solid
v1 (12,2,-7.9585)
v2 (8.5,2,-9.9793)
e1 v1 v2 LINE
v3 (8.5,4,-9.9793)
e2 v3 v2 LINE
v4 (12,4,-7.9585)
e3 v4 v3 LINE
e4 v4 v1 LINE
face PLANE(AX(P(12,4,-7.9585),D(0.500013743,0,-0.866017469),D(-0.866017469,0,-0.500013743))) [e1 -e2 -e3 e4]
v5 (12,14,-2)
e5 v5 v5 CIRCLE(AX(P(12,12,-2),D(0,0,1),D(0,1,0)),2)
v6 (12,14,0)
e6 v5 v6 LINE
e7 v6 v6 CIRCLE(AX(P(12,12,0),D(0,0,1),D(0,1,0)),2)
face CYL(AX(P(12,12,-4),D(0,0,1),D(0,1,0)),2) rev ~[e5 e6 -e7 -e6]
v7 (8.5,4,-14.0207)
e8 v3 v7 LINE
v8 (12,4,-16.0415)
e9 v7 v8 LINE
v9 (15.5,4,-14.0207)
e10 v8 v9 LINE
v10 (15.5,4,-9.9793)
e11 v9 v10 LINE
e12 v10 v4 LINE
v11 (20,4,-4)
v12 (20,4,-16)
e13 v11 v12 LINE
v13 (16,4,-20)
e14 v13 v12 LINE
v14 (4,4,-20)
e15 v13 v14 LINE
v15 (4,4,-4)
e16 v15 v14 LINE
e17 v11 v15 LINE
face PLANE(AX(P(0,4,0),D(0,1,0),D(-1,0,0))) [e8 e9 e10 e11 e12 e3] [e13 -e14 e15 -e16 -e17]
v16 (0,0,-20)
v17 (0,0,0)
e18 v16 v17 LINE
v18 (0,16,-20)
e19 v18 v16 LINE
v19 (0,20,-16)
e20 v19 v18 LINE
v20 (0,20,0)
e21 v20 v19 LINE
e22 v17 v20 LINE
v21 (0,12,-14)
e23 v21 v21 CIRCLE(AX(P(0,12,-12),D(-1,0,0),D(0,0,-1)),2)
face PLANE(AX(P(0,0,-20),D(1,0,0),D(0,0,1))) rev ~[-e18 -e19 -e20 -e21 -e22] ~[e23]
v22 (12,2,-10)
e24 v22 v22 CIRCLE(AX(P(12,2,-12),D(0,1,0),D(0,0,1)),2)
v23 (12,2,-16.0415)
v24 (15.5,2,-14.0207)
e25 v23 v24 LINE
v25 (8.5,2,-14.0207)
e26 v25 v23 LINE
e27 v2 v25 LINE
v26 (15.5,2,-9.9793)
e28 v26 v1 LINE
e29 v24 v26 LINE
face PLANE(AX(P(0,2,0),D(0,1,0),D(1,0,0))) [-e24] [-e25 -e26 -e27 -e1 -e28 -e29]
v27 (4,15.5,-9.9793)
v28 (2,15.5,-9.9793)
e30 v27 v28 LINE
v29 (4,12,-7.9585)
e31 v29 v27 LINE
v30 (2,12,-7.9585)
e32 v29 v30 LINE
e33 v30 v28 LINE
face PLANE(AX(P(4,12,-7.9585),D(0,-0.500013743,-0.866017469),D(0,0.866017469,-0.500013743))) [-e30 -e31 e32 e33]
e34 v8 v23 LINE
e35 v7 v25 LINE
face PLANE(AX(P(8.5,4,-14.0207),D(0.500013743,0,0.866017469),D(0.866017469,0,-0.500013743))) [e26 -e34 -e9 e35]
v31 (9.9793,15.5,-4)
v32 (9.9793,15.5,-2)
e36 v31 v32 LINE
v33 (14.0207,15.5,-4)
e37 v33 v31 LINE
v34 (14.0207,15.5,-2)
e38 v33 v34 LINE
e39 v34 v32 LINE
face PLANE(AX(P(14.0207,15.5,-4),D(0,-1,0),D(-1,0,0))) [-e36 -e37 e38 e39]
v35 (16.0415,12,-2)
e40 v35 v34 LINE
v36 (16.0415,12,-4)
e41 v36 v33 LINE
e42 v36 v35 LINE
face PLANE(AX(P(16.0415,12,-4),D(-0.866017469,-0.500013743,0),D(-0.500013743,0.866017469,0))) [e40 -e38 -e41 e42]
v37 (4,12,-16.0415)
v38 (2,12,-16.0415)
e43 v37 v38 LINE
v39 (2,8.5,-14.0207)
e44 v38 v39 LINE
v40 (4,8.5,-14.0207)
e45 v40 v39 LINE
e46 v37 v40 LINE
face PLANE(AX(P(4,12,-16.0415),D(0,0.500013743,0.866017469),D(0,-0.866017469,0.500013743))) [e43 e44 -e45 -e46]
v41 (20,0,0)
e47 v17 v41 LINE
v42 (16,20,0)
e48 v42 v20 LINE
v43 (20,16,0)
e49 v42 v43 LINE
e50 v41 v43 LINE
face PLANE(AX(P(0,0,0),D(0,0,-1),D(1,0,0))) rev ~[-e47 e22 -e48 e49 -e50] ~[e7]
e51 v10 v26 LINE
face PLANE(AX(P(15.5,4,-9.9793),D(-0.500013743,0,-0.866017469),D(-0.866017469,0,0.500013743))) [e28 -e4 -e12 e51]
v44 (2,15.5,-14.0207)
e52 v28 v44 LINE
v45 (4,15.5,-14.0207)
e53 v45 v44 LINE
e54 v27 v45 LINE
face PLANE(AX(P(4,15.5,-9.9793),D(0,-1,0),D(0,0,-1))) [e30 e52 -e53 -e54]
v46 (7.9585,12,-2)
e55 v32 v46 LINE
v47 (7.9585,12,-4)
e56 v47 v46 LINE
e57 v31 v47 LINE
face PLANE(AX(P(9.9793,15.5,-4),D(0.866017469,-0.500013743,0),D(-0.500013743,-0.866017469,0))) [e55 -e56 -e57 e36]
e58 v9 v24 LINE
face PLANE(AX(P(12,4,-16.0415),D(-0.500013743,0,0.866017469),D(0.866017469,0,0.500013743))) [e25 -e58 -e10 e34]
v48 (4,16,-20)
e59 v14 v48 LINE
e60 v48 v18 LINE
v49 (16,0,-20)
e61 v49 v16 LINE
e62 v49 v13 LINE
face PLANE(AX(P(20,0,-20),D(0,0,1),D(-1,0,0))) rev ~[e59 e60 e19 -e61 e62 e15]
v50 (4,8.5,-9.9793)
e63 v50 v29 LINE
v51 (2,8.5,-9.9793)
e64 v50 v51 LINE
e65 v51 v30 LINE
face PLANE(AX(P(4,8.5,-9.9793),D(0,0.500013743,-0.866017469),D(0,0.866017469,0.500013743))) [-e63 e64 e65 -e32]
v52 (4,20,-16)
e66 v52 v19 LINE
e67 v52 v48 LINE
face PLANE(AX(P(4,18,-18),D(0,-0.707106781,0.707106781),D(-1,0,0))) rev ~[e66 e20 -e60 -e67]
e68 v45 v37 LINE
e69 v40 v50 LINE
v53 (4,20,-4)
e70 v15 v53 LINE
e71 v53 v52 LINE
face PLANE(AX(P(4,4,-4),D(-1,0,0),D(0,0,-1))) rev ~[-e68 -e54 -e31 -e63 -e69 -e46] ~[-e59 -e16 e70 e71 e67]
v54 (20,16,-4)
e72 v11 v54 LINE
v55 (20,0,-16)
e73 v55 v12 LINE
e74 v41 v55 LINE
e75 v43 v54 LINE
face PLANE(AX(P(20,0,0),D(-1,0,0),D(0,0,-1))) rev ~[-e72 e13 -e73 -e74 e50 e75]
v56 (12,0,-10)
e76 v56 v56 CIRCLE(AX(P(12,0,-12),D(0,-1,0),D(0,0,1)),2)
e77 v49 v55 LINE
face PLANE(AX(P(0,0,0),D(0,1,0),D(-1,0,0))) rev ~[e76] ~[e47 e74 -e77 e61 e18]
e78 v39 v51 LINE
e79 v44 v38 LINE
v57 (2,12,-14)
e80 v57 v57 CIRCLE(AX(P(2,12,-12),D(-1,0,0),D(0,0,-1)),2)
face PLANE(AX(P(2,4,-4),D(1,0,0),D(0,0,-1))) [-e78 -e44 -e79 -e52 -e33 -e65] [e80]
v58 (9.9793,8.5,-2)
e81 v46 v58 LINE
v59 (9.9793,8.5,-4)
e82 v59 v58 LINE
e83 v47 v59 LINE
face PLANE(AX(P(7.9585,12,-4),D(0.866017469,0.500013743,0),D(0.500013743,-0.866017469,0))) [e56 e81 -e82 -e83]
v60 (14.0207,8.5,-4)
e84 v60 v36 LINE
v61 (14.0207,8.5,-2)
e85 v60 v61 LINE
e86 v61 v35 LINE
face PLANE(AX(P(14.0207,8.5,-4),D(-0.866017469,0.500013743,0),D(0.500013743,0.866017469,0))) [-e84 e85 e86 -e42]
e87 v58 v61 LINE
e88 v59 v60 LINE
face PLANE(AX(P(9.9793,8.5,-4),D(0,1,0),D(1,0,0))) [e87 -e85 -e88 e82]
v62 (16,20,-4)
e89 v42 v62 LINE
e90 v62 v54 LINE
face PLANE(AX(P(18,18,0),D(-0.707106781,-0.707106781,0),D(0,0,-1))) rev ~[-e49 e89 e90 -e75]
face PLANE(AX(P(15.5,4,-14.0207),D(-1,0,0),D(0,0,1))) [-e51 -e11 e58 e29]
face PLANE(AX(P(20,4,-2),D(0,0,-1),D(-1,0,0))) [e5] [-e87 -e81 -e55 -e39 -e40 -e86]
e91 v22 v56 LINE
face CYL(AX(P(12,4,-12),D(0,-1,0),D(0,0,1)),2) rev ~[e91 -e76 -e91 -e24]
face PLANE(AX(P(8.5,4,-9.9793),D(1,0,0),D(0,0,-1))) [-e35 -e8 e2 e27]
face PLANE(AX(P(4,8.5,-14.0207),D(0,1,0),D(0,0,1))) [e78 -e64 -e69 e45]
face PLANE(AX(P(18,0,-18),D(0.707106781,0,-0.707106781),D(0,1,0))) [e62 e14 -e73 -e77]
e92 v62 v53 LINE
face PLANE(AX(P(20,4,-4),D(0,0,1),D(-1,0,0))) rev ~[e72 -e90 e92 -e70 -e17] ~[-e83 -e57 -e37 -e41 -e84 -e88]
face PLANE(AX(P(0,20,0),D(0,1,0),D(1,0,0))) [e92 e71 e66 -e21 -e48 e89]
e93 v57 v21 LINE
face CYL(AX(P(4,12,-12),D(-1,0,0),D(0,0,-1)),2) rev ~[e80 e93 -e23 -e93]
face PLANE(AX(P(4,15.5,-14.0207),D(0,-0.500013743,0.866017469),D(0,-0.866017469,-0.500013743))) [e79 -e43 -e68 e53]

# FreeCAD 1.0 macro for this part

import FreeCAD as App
import Part
import Sketcher
from FreeCAD import Vector
Q = App.Units.Quantity


def edges_at(feature, points):
    """Names of the edges that pass closest to the given points."""
    edges = feature.Shape.Edges
    near = lambda p: min(range(len(edges)), key=lambda i: edges[i].distToShape(Part.Vertex(*p))[0])
    return sorted({f"Edge{near(p) + 1}" for p in points})

doc = App.newDocument("Part")
body = doc.addObject("PartDesign::Body", "Body")

# Sketch on XZ plane
sketch1 = doc.addObject("Sketcher::SketchObject", "Sketch")
body.addObject(sketch1)
sketch1.AttachmentSupport = (doc.XZ_Plane, [""])
sketch1.MapMode = "FlatFace"
sketch1.addGeometry(Part.LineSegment(Vector(0, -20, 0), Vector(0, 0, 0)), False)
sketch1.addGeometry(Part.LineSegment(Vector(0, 0, 0), Vector(20, 0, 0)), False)
sketch1.addGeometry(Part.LineSegment(Vector(20, 0, 0), Vector(20, -20, 0)), False)
sketch1.addGeometry(Part.LineSegment(Vector(20, -20, 0), Vector(0, -20, 0)), False)
sketch1.addConstraint(Sketcher.Constraint("Coincident", 0, 2, 1, 1))
sketch1.addConstraint(Sketcher.Constraint("Coincident", 1, 2, 2, 1))
sketch1.addConstraint(Sketcher.Constraint("Coincident", 2, 2, 3, 1))
sketch1.addConstraint(Sketcher.Constraint("Coincident", 3, 2, 0, 1))
sketch1.addConstraint(Sketcher.Constraint("Vertical", 0))
sketch1.addConstraint(Sketcher.Constraint("Horizontal", 1))
sketch1.addConstraint(Sketcher.Constraint("Vertical", 2))
sketch1.addConstraint(Sketcher.Constraint("Horizontal", 3))
sketch1.addConstraint(Sketcher.Constraint("Coincident", 0, 2, -1, 1))
sketch1.addConstraint(Sketcher.Constraint("Equal", 3, 0))
sketch1.addConstraint(Sketcher.Constraint("DistanceX", 1, 1, 1, 2, Q("20 mm")))
pad1 = doc.addObject("PartDesign::Pad", "Pad")
body.addObject(pad1)
pad1.Profile = sketch1
pad1.Length = 4
pad1.Reversed = True

# Sketch on XZ plane
sketch2 = doc.addObject("Sketcher::SketchObject", "Sketch001")
body.addObject(sketch2)
sketch2.AttachmentSupport = (doc.XZ_Plane, [""])
sketch2.MapMode = "FlatFace"
sketch2.AttachmentOffset = App.Placement(Vector(0, 0, -4), App.Rotation())
sketch2.addGeometry(Part.LineSegment(Vector(0, -20, 0), Vector(0, 0, 0)), False)
sketch2.addGeometry(Part.LineSegment(Vector(0, 0, 0), Vector(20, 0, 0)), False)
sketch2.addGeometry(Part.LineSegment(Vector(20, 0, 0), Vector(20, -4, 0)), False)
sketch2.addGeometry(Part.LineSegment(Vector(20, -4, 0), Vector(4, -4, 0)), False)
sketch2.addGeometry(Part.LineSegment(Vector(4, -4, 0), Vector(4, -20, 0)), False)
sketch2.addGeometry(Part.LineSegment(Vector(4, -20, 0), Vector(0, -20, 0)), False)
sketch2.addConstraint(Sketcher.Constraint("Coincident", 0, 2, 1, 1))
sketch2.addConstraint(Sketcher.Constraint("Coincident", 1, 2, 2, 1))
sketch2.addConstraint(Sketcher.Constraint("Coincident", 2, 2, 3, 1))
sketch2.addConstraint(Sketcher.Constraint("Coincident", 3, 2, 4, 1))
sketch2.addConstraint(Sketcher.Constraint("Coincident", 4, 2, 5, 1))
sketch2.addConstraint(Sketcher.Constraint("Coincident", 5, 2, 0, 1))
sketch2.addConstraint(Sketcher.Constraint("Vertical", 0))
sketch2.addConstraint(Sketcher.Constraint("Horizontal", 1))
sketch2.addConstraint(Sketcher.Constraint("Vertical", 2))
sketch2.addConstraint(Sketcher.Constraint("Horizontal", 3))
sketch2.addConstraint(Sketcher.Constraint("Vertical", 4))
sketch2.addConstraint(Sketcher.Constraint("Horizontal", 5))
sketch2.addConstraint(Sketcher.Constraint("Coincident", 0, 2, -1, 1))
sketch2.addConstraint(Sketcher.Constraint("Equal", 1, 0))
sketch2.addConstraint(Sketcher.Constraint("Equal", 5, 2))
sketch2.addConstraint(Sketcher.Constraint("DistanceX", 1, 1, 1, 2, Q("20 mm")))
sketch2.addConstraint(Sketcher.Constraint("DistanceX", 3, 2, 3, 1, Q("16 mm")))
pad2 = doc.addObject("PartDesign::Pad", "Pad001")
body.addObject(pad2)
pad2.Profile = sketch2
pad2.Length = 16
pad2.Reversed = True

# Sketch on XY plane
sketch3 = doc.addObject("Sketcher::SketchObject", "Sketch002")
body.addObject(sketch3)
sketch3.AttachmentSupport = (doc.XY_Plane, [""])
sketch3.MapMode = "FlatFace"
sketch3.AttachmentOffset = App.Placement(Vector(0, 0, -4), App.Rotation())
sketch3.addGeometry(Part.Circle(Vector(12, 12, 0), Vector(0, 0, 1), 2), False)
sketch3.addConstraint(Sketcher.Constraint("Diameter", 0, Q("4 mm")))
sketch3.addConstraint(Sketcher.Constraint("DistanceX", -1, 1, 0, 3, Q("12 mm")))
sketch3.addConstraint(Sketcher.Constraint("DistanceY", -1, 1, 0, 3, Q("12 mm")))
doc.recompute()
hole = doc.addObject("PartDesign::Hole", "Hole")
body.addObject(hole)
hole.Profile = sketch3
hole.ThreadType = "None"
hole.Diameter = 4
hole.DepthType = "ThroughAll"
hole.Reversed = True

# Sketch on YZ plane
sketch4 = doc.addObject("Sketcher::SketchObject", "Sketch003")
body.addObject(sketch4)
sketch4.AttachmentSupport = (doc.YZ_Plane, [""])
sketch4.MapMode = "FlatFace"
sketch4.AttachmentOffset = App.Placement(Vector(0, 0, 4), App.Rotation())
sketch4.addGeometry(Part.Circle(Vector(12, -12, 0), Vector(0, 0, 1), 2), False)
sketch4.addConstraint(Sketcher.Constraint("Diameter", 0, Q("4 mm")))
sketch4.addConstraint(Sketcher.Constraint("DistanceX", -1, 1, 0, 3, Q("12 mm")))
sketch4.addConstraint(Sketcher.Constraint("DistanceY", 0, 3, -1, 1, Q("12 mm")))
doc.recompute()
hole2 = doc.addObject("PartDesign::Hole", "Hole001")
body.addObject(hole2)
hole2.Profile = sketch4
hole2.ThreadType = "None"
hole2.Diameter = 4
hole2.DepthType = "ThroughAll"

# Sketch on XZ plane
sketch5 = doc.addObject("Sketcher::SketchObject", "Sketch004")
body.addObject(sketch5)
sketch5.AttachmentSupport = (doc.XZ_Plane, [""])
sketch5.MapMode = "FlatFace"
sketch5.AttachmentOffset = App.Placement(Vector(0, 0, -4), App.Rotation())
sketch5.addGeometry(Part.Circle(Vector(12, -12, 0), Vector(0, 0, 1), 2), False)
sketch5.addConstraint(Sketcher.Constraint("Diameter", 0, Q("4 mm")))
sketch5.addConstraint(Sketcher.Constraint("DistanceX", -1, 1, 0, 3, Q("12 mm")))
sketch5.addConstraint(Sketcher.Constraint("DistanceY", 0, 3, -1, 1, Q("12 mm")))
doc.recompute()
hole3 = doc.addObject("PartDesign::Hole", "Hole002")
body.addObject(hole3)
hole3.Profile = sketch5
hole3.ThreadType = "None"
hole3.Diameter = 4
hole3.DepthType = "ThroughAll"
hole3.Reversed = True
doc.recompute()

chamfer = doc.addObject("PartDesign::Chamfer", "Chamfer")
body.addObject(chamfer)
chamfer.Base = (hole3, edges_at(hole3, [(20, 2, -20)]))
chamfer.Size = 4
doc.recompute()

chamfer2 = doc.addObject("PartDesign::Chamfer", "Chamfer001")
body.addObject(chamfer2)
chamfer2.Base = (chamfer, edges_at(chamfer, [(20, 20, -2)]))
chamfer2.Size = 4
doc.recompute()

chamfer3 = doc.addObject("PartDesign::Chamfer", "Chamfer002")
body.addObject(chamfer3)
chamfer3.Base = (chamfer2, edges_at(chamfer2, [(2, 20, -20)]))
chamfer3.Size = 4

# Sketch on XY plane
sketch6 = doc.addObject("Sketcher::SketchObject", "Sketch005")
body.addObject(sketch6)
sketch6.AttachmentSupport = (doc.XY_Plane, [""])
sketch6.MapMode = "FlatFace"
sketch6.AttachmentOffset = App.Placement(Vector(0, 0, -4), App.Rotation())
sketch6.addGeometry(Part.LineSegment(Vector(9.9793, 8.5, 0), Vector(7.9585, 12, 0)), False)
sketch6.addGeometry(Part.LineSegment(Vector(7.9585, 12, 0), Vector(9.9793, 15.5, 0)), False)
sketch6.addGeometry(Part.LineSegment(Vector(9.9793, 15.5, 0), Vector(14.0207, 15.5, 0)), False)
sketch6.addGeometry(Part.LineSegment(Vector(14.0207, 15.5, 0), Vector(16.0415, 12, 0)), False)
sketch6.addGeometry(Part.LineSegment(Vector(16.0415, 12, 0), Vector(14.0207, 8.5, 0)), False)
sketch6.addGeometry(Part.LineSegment(Vector(14.0207, 8.5, 0), Vector(9.9793, 8.5, 0)), False)
sketch6.addConstraint(Sketcher.Constraint("Coincident", 0, 2, 1, 1))
sketch6.addConstraint(Sketcher.Constraint("Coincident", 1, 2, 2, 1))
sketch6.addConstraint(Sketcher.Constraint("Coincident", 2, 2, 3, 1))
sketch6.addConstraint(Sketcher.Constraint("Coincident", 3, 2, 4, 1))
sketch6.addConstraint(Sketcher.Constraint("Coincident", 4, 2, 5, 1))
sketch6.addConstraint(Sketcher.Constraint("Coincident", 5, 2, 0, 1))
sketch6.addConstraint(Sketcher.Constraint("Horizontal", 2))
sketch6.addConstraint(Sketcher.Constraint("Horizontal", 5))
sketch6.addConstraint(Sketcher.Constraint("Parallel", 0, 3))
sketch6.addConstraint(Sketcher.Constraint("Parallel", 1, 4))
sketch6.addConstraint(Sketcher.Constraint("Horizontal", 0, 2, 3, 2))
sketch6.addConstraint(Sketcher.Constraint("Vertical", 2, 2, 4, 2))
sketch6.addConstraint(Sketcher.Constraint("Vertical", 1, 2, 5, 2))
sketch6.addConstraint(Sketcher.Constraint("DistanceY", 4, 2, 2, 2, Q("7 mm")))
sketch6.addConstraint(Sketcher.Constraint("Angle", 0, Q("120.001 deg")))
sketch6.addConstraint(Sketcher.Constraint("DistanceY", -1, 1, 0, 2, Q("12 mm")))
sketch6.addConstraint(Sketcher.Constraint("DistanceX", 2, 1, 2, 2, Q("4.0414 mm")))
sketch6.addConstraint(Sketcher.Constraint("DistanceX", -1, 1, 0, 2, Q("7.9585 mm")))
pocket1 = doc.addObject("PartDesign::Pocket", "Pocket")
body.addObject(pocket1)
pocket1.Profile = sketch6
pocket1.Length = 2
pocket1.Reversed = True

# Sketch on YZ plane
sketch7 = doc.addObject("Sketcher::SketchObject", "Sketch006")
body.addObject(sketch7)
sketch7.AttachmentSupport = (doc.YZ_Plane, [""])
sketch7.MapMode = "FlatFace"
sketch7.AttachmentOffset = App.Placement(Vector(0, 0, 4), App.Rotation())
sketch7.addGeometry(Part.LineSegment(Vector(8.5, -14.0207, 0), Vector(12, -16.0415, 0)), False)
sketch7.addGeometry(Part.LineSegment(Vector(12, -16.0415, 0), Vector(15.5, -14.0207, 0)), False)
sketch7.addGeometry(Part.LineSegment(Vector(15.5, -14.0207, 0), Vector(15.5, -9.9793, 0)), False)
sketch7.addGeometry(Part.LineSegment(Vector(15.5, -9.9793, 0), Vector(12, -7.9585, 0)), False)
sketch7.addGeometry(Part.LineSegment(Vector(12, -7.9585, 0), Vector(8.5, -9.9793, 0)), False)
sketch7.addGeometry(Part.LineSegment(Vector(8.5, -9.9793, 0), Vector(8.5, -14.0207, 0)), False)
sketch7.addConstraint(Sketcher.Constraint("Coincident", 0, 2, 1, 1))
sketch7.addConstraint(Sketcher.Constraint("Coincident", 1, 2, 2, 1))
sketch7.addConstraint(Sketcher.Constraint("Coincident", 2, 2, 3, 1))
sketch7.addConstraint(Sketcher.Constraint("Coincident", 3, 2, 4, 1))
sketch7.addConstraint(Sketcher.Constraint("Coincident", 4, 2, 5, 1))
sketch7.addConstraint(Sketcher.Constraint("Coincident", 5, 2, 0, 1))
sketch7.addConstraint(Sketcher.Constraint("Vertical", 2))
sketch7.addConstraint(Sketcher.Constraint("Vertical", 5))
sketch7.addConstraint(Sketcher.Constraint("Parallel", 0, 3))
sketch7.addConstraint(Sketcher.Constraint("Parallel", 1, 4))
sketch7.addConstraint(Sketcher.Constraint("Horizontal", 2, 2, 4, 2))
sketch7.addConstraint(Sketcher.Constraint("Horizontal", 1, 2, 5, 2))
sketch7.addConstraint(Sketcher.Constraint("Vertical", 0, 2, 3, 2))
sketch7.addConstraint(Sketcher.Constraint("DistanceX", 4, 2, 2, 2, Q("7 mm")))
sketch7.addConstraint(Sketcher.Constraint("Angle", 0, Q("-30.001 deg")))
sketch7.addConstraint(Sketcher.Constraint("DistanceX", -1, 1, 0, 2, Q("12 mm")))
sketch7.addConstraint(Sketcher.Constraint("DistanceY", 2, 1, 2, 2, Q("4.0414 mm")))
sketch7.addConstraint(Sketcher.Constraint("DistanceY", 0, 2, -1, 1, Q("16.0415 mm")))
pocket2 = doc.addObject("PartDesign::Pocket", "Pocket001")
body.addObject(pocket2)
pocket2.Profile = sketch7
pocket2.Length = 2

# Sketch on XZ plane
sketch8 = doc.addObject("Sketcher::SketchObject", "Sketch007")
body.addObject(sketch8)
sketch8.AttachmentSupport = (doc.XZ_Plane, [""])
sketch8.MapMode = "FlatFace"
sketch8.AttachmentOffset = App.Placement(Vector(0, 0, -4), App.Rotation())
sketch8.addGeometry(Part.LineSegment(Vector(8.5, -9.9793, 0), Vector(12, -7.9585, 0)), False)
sketch8.addGeometry(Part.LineSegment(Vector(12, -7.9585, 0), Vector(15.5, -9.9793, 0)), False)
sketch8.addGeometry(Part.LineSegment(Vector(15.5, -9.9793, 0), Vector(15.5, -14.0207, 0)), False)
sketch8.addGeometry(Part.LineSegment(Vector(15.5, -14.0207, 0), Vector(12, -16.0415, 0)), False)
sketch8.addGeometry(Part.LineSegment(Vector(12, -16.0415, 0), Vector(8.5, -14.0207, 0)), False)
sketch8.addGeometry(Part.LineSegment(Vector(8.5, -14.0207, 0), Vector(8.5, -9.9793, 0)), False)
sketch8.addGeometry(Part.Circle(Vector(12, -12, 0), Vector(0, 0, 1), 2), False)
sketch8.addConstraint(Sketcher.Constraint("Coincident", 0, 2, 1, 1))
sketch8.addConstraint(Sketcher.Constraint("Coincident", 1, 2, 2, 1))
sketch8.addConstraint(Sketcher.Constraint("Coincident", 2, 2, 3, 1))
sketch8.addConstraint(Sketcher.Constraint("Coincident", 3, 2, 4, 1))
sketch8.addConstraint(Sketcher.Constraint("Coincident", 4, 2, 5, 1))
sketch8.addConstraint(Sketcher.Constraint("Coincident", 5, 2, 0, 1))
sketch8.addConstraint(Sketcher.Constraint("Vertical", 2))
sketch8.addConstraint(Sketcher.Constraint("Vertical", 5))
sketch8.addConstraint(Sketcher.Constraint("Parallel", 0, 3))
sketch8.addConstraint(Sketcher.Constraint("Parallel", 1, 4))
sketch8.addConstraint(Sketcher.Constraint("Horizontal", 2, 2, 4, 2))
sketch8.addConstraint(Sketcher.Constraint("Horizontal", 1, 2, 5, 2))
sketch8.addConstraint(Sketcher.Constraint("Vertical", 6, 3, 0, 2))
sketch8.addConstraint(Sketcher.Constraint("Vertical", 0, 2, 3, 2))
sketch8.addConstraint(Sketcher.Constraint("Diameter", 6, Q("4 mm")))
sketch8.addConstraint(Sketcher.Constraint("DistanceX", 4, 2, 2, 2, Q("7 mm")))
sketch8.addConstraint(Sketcher.Constraint("Angle", 0, Q("30.001 deg")))
sketch8.addConstraint(Sketcher.Constraint("DistanceX", -1, 1, 6, 3, Q("12 mm")))
sketch8.addConstraint(Sketcher.Constraint("DistanceY", 6, 3, -1, 1, Q("12 mm")))
sketch8.addConstraint(Sketcher.Constraint("DistanceY", 2, 2, 2, 1, Q("4.0414 mm")))
sketch8.addConstraint(Sketcher.Constraint("DistanceY", 0, 2, -1, 1, Q("7.9585 mm")))
pocket3 = doc.addObject("PartDesign::Pocket", "Pocket002")
body.addObject(pocket3)
pocket3.Profile = sketch8
pocket3.Length = 2
pocket3.Reversed = True

doc.recompute()
